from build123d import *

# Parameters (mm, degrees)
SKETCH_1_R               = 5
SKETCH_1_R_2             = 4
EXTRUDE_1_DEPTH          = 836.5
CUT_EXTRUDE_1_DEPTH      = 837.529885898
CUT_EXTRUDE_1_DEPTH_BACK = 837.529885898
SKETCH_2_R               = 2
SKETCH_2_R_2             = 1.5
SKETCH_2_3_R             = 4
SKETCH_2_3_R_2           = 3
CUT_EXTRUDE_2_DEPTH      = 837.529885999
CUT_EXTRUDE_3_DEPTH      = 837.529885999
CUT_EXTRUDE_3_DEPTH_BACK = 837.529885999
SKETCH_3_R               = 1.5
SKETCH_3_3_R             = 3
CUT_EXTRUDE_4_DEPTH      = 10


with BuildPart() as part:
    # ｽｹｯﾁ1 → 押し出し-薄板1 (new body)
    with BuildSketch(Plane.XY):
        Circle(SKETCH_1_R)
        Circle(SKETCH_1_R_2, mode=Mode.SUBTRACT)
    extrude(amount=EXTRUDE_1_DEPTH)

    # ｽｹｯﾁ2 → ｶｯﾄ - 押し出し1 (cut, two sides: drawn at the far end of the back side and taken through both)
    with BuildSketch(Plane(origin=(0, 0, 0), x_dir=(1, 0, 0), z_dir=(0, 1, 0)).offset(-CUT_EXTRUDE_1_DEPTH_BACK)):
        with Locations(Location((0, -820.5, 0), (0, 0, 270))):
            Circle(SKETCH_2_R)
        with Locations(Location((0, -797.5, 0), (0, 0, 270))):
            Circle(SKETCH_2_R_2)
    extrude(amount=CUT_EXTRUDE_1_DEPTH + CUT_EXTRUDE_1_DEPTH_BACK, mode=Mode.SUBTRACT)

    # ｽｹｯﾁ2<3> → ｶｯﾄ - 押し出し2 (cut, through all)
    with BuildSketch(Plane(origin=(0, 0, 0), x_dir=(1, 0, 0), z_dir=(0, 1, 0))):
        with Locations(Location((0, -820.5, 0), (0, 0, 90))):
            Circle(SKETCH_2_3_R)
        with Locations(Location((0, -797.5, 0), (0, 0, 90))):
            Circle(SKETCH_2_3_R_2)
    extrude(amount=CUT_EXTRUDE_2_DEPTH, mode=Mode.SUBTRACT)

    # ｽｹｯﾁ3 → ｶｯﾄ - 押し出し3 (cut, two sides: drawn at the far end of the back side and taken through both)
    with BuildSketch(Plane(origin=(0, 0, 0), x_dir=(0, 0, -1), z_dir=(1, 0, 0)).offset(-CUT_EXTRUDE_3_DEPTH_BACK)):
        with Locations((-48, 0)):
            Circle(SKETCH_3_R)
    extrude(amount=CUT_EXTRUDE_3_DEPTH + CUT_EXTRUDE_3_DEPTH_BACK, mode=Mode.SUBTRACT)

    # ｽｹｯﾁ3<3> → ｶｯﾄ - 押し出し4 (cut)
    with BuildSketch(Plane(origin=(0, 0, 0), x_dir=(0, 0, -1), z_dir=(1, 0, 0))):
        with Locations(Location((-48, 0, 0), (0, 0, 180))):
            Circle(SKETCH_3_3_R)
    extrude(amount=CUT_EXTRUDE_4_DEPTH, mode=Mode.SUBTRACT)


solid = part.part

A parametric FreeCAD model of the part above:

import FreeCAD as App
import Part
import Sketcher
from FreeCAD import Vector

doc = App.newDocument("Part")
params = doc.addObject("Spreadsheet::Sheet", "Params")
for row, (alias, value) in enumerate([
    ("sketch1_diameter", "10 mm"),
    ("sketch1_diameter2", "8 mm"),
    ("pad1_length", "836.5 mm"),
    ("sketch2_diameter", "4 mm"),
    ("sketch2_diameter2", "3 mm"),
    ("sketch3_diameter", "8 mm"),
    ("sketch3_diameter2", "6 mm"),
    ("sketch4_diameter", "3 mm"),
    ("sketch5_diameter", "6 mm"),
    ("pocket4_length", "10 mm"),
], start=1):
    params.set(f"A{row}", alias)
    params.set(f"B{row}", "=" + value)
    params.setAlias(f"B{row}", alias)

body = doc.addObject("PartDesign::Body", "Body")

sketch1 = body.newObject("Sketcher::SketchObject", "Sketch")
sketch1.AttachmentSupport = (doc.getObject("XY_Plane"), [""])
sketch1.MapMode = "FlatFace"
sketch1.addGeometry(Part.Circle(Vector(0, 0, 0), Vector(0, 0, 1), 5), False)
sketch1.addGeometry(Part.Circle(Vector(0, 0, 0), Vector(0, 0, 1), 4), False)
sketch1.addConstraint(Sketcher.Constraint("Coincident", 0, 3, -1, 1))
sketch1.addConstraint(Sketcher.Constraint("Coincident", 1, 3, -1, 1))
sketch1.addConstraint(Sketcher.Constraint("Diameter", 0, 10.0))
sketch1.addConstraint(Sketcher.Constraint("Diameter", 1, 8.0))
sketch1.setExpression("Constraints[2]", "Params.sketch1_diameter")
sketch1.setExpression("Constraints[3]", "Params.sketch1_diameter2")
pad1 = body.newObject("PartDesign::Pad", "Pad")
pad1.Profile = sketch1
pad1.setExpression("Length", "Params.pad1_length")

sketch2 = body.newObject("Sketcher::SketchObject", "Sketch001")
sketch2.AttachmentSupport = (doc.getObject("XZ_Plane"), [""])
sketch2.MapMode = "FlatFace"
sketch2.addGeometry(Part.Circle(Vector(0, 820.5, 0), Vector(0, 0, 1), 2), False)
sketch2.addGeometry(Part.Circle(Vector(0, 797.5, 0), Vector(0, 0, 1), 1.5), False)
sketch2.addConstraint(Sketcher.Constraint("PointOnObject", 0, 3, -2))
sketch2.addConstraint(Sketcher.Constraint("PointOnObject", 1, 3, -2))
sketch2.addConstraint(Sketcher.Constraint("Diameter", 0, 4.0))
sketch2.addConstraint(Sketcher.Constraint("Diameter", 1, 3.0))
sketch2.addConstraint(Sketcher.Constraint("DistanceY", 1, 3, 0, 3, 23.0))
sketch2.addConstraint(Sketcher.Constraint("DistanceY", -1, 1, 0, 3, 820.5))
sketch2.setExpression("Constraints[2]", "Params.sketch2_diameter")
sketch2.setExpression("Constraints[3]", "Params.sketch2_diameter2")
pocket1 = body.newObject("PartDesign::Pocket", "Pocket")
pocket1.Profile = sketch2
pocket1.Type = "ThroughAll"
pocket1.Midplane = True

sketch3 = body.newObject("Sketcher::SketchObject", "Sketch002")
sketch3.AttachmentSupport = (doc.getObject("XZ_Plane"), [""])
sketch3.MapMode = "FlatFace"
sketch3.addGeometry(Part.Circle(Vector(0, 820.5, 0), Vector(0, 0, 1), 4), False)
sketch3.addGeometry(Part.Circle(Vector(0, 797.5, 0), Vector(0, 0, 1), 3), False)
sketch3.addConstraint(Sketcher.Constraint("PointOnObject", 0, 3, -2))
sketch3.addConstraint(Sketcher.Constraint("PointOnObject", 1, 3, -2))
sketch3.addConstraint(Sketcher.Constraint("Diameter", 0, 8.0))
sketch3.addConstraint(Sketcher.Constraint("Diameter", 1, 6.0))
sketch3.addConstraint(Sketcher.Constraint("DistanceY", 1, 3, 0, 3, 23.0))
sketch3.addConstraint(Sketcher.Constraint("DistanceY", -1, 1, 0, 3, 820.5))
sketch3.setExpression("Constraints[2]", "Params.sketch3_diameter")
sketch3.setExpression("Constraints[3]", "Params.sketch3_diameter2")
pocket2 = body.newObject("PartDesign::Pocket", "Pocket001")
pocket2.Profile = sketch3
pocket2.Type = "ThroughAll"

sketch4 = body.newObject("Sketcher::SketchObject", "Sketch003")
sketch4.AttachmentSupport = (doc.getObject("YZ_Plane"), [""])
sketch4.MapMode = "FlatFace"
sketch4.addGeometry(Part.Circle(Vector(0, 48, 0), Vector(0, 0, 1), 1.5), False)
sketch4.addConstraint(Sketcher.Constraint("PointOnObject", 0, 3, -2))
sketch4.addConstraint(Sketcher.Constraint("Diameter", 0, 3.0))
sketch4.addConstraint(Sketcher.Constraint("DistanceY", -1, 1, 0, 3, 48.0))
sketch4.setExpression("Constraints[1]", "Params.sketch4_diameter")
pocket3 = body.newObject("PartDesign::Pocket", "Pocket002")
pocket3.Profile = sketch4
pocket3.Type = "ThroughAll"
pocket3.Midplane = True

sketch5 = body.newObject("Sketcher::SketchObject", "Sketch004")
sketch5.AttachmentSupport = (doc.getObject("YZ_Plane"), [""])
sketch5.MapMode = "FlatFace"
sketch5.addGeometry(Part.Circle(Vector(0, 48, 0), Vector(0, 0, 1), 3), False)
sketch5.addConstraint(Sketcher.Constraint("PointOnObject", 0, 3, -2))
sketch5.addConstraint(Sketcher.Constraint("Diameter", 0, 6.0))
sketch5.addConstraint(Sketcher.Constraint("DistanceY", -1, 1, 0, 3, 48.0))
sketch5.setExpression("Constraints[1]", "Params.sketch5_diameter")
pocket4 = body.newObject("PartDesign::Pocket", "Pocket003")
pocket4.Profile = sketch5
pocket4.setExpression("Length", "Params.pocket4_length")
pocket4.Reversed = True

doc.recompute()
